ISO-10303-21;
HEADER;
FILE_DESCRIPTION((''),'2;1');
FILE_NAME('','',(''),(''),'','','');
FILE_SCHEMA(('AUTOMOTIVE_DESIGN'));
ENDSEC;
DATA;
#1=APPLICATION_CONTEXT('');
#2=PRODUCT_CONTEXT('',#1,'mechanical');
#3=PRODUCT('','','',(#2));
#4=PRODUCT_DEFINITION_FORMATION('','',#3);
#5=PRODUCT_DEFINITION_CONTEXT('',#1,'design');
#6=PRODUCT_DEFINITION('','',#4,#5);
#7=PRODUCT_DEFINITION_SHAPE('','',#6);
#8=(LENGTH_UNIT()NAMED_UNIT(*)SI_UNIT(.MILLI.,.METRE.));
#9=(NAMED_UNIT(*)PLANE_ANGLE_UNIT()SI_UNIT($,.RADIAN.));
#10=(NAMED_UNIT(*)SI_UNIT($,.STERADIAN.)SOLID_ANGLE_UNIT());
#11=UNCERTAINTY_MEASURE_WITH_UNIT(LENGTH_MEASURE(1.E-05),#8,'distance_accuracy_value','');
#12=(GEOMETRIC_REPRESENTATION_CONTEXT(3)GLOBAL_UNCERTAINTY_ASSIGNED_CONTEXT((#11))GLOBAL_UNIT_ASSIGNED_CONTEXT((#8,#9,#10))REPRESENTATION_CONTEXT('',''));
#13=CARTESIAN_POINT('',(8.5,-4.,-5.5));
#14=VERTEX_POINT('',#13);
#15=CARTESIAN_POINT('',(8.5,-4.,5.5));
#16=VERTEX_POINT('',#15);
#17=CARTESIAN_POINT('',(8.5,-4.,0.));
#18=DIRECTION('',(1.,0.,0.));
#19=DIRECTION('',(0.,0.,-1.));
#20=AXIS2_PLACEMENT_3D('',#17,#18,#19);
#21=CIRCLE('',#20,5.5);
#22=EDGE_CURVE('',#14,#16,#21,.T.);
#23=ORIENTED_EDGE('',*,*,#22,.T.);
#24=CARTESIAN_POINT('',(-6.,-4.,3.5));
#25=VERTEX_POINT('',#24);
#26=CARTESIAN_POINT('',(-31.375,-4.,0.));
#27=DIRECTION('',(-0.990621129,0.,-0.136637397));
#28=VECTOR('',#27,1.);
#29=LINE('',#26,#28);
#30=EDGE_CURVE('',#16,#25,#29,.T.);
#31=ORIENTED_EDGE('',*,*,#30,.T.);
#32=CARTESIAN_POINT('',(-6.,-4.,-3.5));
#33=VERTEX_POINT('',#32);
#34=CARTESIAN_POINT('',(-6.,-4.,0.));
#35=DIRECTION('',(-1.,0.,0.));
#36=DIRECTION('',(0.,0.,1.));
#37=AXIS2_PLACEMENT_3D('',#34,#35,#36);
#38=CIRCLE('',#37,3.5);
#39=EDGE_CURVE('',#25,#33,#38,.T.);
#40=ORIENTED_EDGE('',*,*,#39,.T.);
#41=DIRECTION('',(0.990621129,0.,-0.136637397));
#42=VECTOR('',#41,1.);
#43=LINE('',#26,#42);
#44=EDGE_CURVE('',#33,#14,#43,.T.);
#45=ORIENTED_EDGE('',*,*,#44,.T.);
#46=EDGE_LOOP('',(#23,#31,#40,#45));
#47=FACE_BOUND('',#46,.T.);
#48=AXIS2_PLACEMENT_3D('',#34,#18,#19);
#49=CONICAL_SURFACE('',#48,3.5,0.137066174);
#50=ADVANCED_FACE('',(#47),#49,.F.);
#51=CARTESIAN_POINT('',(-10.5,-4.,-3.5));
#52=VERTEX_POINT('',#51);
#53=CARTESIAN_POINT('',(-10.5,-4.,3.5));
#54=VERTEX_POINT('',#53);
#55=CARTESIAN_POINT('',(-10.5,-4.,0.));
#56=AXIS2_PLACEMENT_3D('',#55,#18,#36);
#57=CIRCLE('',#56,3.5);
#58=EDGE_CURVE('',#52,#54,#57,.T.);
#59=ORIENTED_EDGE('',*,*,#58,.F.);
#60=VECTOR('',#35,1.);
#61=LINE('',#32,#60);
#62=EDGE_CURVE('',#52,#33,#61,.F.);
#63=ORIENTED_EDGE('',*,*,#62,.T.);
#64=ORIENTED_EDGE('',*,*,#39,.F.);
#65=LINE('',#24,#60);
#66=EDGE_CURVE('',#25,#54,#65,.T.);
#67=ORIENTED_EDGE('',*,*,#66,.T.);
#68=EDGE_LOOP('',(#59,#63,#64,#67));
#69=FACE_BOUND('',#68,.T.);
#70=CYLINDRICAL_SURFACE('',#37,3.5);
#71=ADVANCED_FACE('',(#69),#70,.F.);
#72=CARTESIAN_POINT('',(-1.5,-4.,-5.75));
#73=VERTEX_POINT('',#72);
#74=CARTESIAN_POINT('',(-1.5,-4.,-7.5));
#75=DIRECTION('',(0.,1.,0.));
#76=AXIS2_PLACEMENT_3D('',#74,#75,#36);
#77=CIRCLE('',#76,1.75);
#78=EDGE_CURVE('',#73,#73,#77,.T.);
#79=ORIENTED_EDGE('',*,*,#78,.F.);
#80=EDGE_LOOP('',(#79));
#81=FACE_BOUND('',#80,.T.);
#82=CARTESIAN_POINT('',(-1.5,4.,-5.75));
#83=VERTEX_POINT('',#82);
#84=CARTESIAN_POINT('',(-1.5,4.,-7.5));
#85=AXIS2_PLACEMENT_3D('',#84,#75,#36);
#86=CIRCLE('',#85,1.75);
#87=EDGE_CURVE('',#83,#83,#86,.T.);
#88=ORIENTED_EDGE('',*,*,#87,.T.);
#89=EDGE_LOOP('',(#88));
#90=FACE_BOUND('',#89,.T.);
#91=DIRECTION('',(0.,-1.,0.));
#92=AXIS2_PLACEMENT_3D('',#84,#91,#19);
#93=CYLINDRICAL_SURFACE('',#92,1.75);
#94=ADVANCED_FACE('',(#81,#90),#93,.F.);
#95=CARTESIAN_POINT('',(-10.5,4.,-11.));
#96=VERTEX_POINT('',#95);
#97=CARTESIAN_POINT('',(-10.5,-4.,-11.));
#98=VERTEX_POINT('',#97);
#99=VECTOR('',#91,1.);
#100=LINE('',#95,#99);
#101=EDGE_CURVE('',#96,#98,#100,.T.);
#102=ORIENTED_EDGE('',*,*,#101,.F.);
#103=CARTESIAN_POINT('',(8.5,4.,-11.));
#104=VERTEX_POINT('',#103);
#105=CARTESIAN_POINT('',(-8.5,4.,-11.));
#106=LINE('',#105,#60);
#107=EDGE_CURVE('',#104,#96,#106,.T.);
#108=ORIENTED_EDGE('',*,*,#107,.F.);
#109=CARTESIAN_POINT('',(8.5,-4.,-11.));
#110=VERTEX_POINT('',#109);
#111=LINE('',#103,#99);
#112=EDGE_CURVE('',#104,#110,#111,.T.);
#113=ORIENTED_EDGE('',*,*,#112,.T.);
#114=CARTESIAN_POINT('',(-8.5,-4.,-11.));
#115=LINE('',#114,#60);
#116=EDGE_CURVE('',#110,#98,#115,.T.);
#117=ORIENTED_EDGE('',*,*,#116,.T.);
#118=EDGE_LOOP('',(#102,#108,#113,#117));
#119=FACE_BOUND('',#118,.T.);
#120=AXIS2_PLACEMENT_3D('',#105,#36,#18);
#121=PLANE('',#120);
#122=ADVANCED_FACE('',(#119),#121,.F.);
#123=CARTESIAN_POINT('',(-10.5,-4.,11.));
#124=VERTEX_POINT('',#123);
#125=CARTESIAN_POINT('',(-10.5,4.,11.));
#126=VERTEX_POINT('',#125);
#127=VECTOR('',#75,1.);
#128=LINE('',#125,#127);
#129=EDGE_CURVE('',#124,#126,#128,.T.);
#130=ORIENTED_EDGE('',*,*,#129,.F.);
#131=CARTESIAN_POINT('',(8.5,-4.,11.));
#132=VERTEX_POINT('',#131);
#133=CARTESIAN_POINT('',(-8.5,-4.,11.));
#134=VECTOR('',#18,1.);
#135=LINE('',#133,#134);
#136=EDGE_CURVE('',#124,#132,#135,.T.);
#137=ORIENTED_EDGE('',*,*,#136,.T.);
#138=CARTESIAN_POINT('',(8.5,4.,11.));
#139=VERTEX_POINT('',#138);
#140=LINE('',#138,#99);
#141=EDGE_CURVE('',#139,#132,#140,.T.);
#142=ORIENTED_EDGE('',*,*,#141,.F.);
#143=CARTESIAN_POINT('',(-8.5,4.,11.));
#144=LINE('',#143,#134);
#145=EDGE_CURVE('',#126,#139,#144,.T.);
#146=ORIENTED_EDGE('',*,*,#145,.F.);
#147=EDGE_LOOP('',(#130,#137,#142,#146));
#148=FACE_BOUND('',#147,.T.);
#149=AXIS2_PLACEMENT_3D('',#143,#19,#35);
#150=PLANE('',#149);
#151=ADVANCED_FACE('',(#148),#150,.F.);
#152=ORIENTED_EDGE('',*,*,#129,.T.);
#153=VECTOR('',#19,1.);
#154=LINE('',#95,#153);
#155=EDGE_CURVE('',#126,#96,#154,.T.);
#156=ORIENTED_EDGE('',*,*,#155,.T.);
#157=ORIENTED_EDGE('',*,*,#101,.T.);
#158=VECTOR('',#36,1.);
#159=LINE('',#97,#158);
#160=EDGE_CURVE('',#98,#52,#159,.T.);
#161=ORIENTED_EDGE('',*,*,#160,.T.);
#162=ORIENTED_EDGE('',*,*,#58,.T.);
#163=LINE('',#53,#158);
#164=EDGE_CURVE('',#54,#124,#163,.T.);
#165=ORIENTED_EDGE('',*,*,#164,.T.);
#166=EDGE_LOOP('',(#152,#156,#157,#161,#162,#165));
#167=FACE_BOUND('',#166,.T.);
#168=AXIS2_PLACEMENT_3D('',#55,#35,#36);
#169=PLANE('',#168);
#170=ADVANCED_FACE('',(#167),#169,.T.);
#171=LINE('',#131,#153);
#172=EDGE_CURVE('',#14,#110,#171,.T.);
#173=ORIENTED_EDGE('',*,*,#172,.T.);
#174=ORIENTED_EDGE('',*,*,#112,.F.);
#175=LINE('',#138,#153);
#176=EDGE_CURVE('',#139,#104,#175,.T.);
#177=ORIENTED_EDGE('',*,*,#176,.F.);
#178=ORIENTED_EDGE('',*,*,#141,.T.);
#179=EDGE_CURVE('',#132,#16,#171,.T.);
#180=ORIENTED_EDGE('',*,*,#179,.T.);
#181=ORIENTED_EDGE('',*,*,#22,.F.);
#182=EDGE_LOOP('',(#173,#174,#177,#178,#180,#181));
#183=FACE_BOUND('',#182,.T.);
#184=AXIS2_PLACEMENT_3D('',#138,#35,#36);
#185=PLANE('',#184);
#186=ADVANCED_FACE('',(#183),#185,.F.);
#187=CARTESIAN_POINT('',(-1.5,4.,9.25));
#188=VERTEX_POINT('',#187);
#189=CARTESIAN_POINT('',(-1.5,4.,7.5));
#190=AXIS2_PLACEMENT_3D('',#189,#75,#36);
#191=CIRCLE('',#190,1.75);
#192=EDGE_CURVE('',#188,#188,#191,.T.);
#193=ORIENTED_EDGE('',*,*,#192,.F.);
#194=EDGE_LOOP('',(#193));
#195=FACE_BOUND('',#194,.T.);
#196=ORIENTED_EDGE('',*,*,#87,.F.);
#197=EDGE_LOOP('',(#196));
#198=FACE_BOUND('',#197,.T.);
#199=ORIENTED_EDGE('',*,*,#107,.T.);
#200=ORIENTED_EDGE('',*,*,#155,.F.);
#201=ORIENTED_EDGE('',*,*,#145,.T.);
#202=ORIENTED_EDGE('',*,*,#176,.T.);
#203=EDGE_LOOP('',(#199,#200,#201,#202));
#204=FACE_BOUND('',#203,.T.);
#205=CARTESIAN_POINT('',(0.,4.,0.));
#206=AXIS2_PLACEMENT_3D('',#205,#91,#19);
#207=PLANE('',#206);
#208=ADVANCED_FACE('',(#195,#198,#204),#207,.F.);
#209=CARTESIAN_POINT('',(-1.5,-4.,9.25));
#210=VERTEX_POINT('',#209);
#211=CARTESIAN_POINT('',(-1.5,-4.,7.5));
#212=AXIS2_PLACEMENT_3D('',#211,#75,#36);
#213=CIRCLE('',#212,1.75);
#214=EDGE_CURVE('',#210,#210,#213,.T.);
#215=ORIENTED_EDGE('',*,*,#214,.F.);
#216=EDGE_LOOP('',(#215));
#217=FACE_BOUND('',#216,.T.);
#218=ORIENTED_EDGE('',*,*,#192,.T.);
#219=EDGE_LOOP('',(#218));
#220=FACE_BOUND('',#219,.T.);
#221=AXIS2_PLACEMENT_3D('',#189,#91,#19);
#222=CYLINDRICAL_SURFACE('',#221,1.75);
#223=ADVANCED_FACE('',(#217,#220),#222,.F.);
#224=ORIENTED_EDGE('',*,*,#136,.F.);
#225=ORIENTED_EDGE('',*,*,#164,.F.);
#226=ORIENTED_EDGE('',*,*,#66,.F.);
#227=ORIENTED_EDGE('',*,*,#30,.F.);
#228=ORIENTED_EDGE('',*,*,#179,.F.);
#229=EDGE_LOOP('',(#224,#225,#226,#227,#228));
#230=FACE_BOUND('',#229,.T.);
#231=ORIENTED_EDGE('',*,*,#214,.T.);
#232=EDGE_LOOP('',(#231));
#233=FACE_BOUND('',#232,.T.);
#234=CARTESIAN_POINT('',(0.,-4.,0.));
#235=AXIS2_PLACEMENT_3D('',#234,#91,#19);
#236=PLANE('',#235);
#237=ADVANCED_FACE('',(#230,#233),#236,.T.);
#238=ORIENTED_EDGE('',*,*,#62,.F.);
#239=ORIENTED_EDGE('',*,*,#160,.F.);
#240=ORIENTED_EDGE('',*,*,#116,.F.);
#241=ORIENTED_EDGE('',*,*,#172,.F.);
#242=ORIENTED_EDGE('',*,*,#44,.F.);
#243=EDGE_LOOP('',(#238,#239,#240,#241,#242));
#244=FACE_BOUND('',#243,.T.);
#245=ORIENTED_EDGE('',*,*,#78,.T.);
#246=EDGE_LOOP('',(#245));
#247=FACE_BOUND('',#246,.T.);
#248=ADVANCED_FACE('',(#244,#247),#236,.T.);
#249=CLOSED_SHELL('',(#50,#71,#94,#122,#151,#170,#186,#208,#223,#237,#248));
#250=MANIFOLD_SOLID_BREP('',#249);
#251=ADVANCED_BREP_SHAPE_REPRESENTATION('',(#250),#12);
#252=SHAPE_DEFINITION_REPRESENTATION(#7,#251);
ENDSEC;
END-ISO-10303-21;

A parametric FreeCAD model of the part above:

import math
import FreeCAD as App
import Part
import Sketcher
from FreeCAD import Vector
Q = App.Units.Quantity

doc = App.newDocument("Part")
body = doc.addObject("PartDesign::Body", "Body")

# Sketch on XZ plane
sketch1 = body.newObject("Sketcher::SketchObject", "Sketch")
sketch1.AttachmentSupport = (doc.getObject("XZ_Plane"), [""])
sketch1.MapMode = "FlatFace"
sketch1.addGeometry([
    Part.LineSegment(Vector(-8.5, -11, 0), Vector(-8.5, 11, 0)),  # 0
    Part.LineSegment(Vector(-8.5, 11, 0), Vector(8.5, 11, 0)),  # 1
    Part.LineSegment(Vector(8.5, 11, 0), Vector(8.5, -11, 0)),  # 2
    Part.LineSegment(Vector(8.5, -11, 0), Vector(-8.5, -11, 0)),  # 3
    Part.Circle(Vector(-1.5, 7.5, 0), Vector(0, 0, 1), 1.8),  # 4
    Part.Circle(Vector(-1.5, -7.5, 0), Vector(0, 0, 1), 1.8),  # 5
], False)
sketch1.addConstraint([
    Sketcher.Constraint("Coincident", 0, 2, 1, 1),
    Sketcher.Constraint("Coincident", 1, 2, 2, 1),
    Sketcher.Constraint("Coincident", 2, 2, 3, 1),
    Sketcher.Constraint("Coincident", 3, 2, 0, 1),
    Sketcher.Constraint("Vertical", 0),
    Sketcher.Constraint("Horizontal", 1),
    Sketcher.Constraint("Vertical", 2),
    Sketcher.Constraint("Horizontal", 3),
    Sketcher.Constraint("Equal", 4, 5),
    Sketcher.Constraint("Symmetric", 0, 2, 2, 2, -1, 1),
    Sketcher.Constraint("Symmetric", 4, 3, 5, 3, -1),
    Sketcher.Constraint("Diameter", 4, Q("3.5 mm")),
    Sketcher.Constraint("DistanceX", 1, 1, 1, 2, Q("17 mm")),
    Sketcher.Constraint("DistanceY", 0, 1, 0, 2, Q("22 mm")),
    Sketcher.Constraint("DistanceY", 5, 3, 4, 3, Q("15 mm")),
    Sketcher.Constraint("DistanceX", 0, 2, 4, 3, Q("7 mm")),
])
pad1 = body.newObject("PartDesign::Pad", "Pad")
pad1.Profile = sketch1
pad1.Length = 8
pad1.Midplane = True

# Sketch on YZ plane
sketch2 = body.newObject("Sketcher::SketchObject", "Sketch001")
sketch2.AttachmentSupport = (doc.getObject("YZ_Plane"), [""])
sketch2.MapMode = "FlatFace"
sketch2.AttachmentOffset = App.Placement(Vector(0, 0, -8.5), App.Rotation())
sketch2.addGeometry(Part.Circle(Vector(-4, 0, 0), Vector(0, 0, 1), 3.5), False)
sketch2.addConstraint([
    Sketcher.Constraint("PointOnObject", 0, 3, -1),
    Sketcher.Constraint("Diameter", 0, Q("7 mm")),
    Sketcher.Constraint("DistanceX", 0, 3, -1, 1, Q("4 mm")),
])
pocket1 = body.newObject("PartDesign::Pocket", "Pocket")
pocket1.Profile = sketch2
pocket1.Length = 2.5
pocket1.Reversed = True

# Sketch on YZ plane
sketch3 = body.newObject("Sketcher::SketchObject", "Sketch002")
sketch3.AttachmentSupport = (doc.getObject("YZ_Plane"), [""])
sketch3.MapMode = "FlatFace"
sketch3.AttachmentOffset = App.Placement(Vector(0, 0, 8.5), App.Rotation())
sketch3.addGeometry(Part.Circle(Vector(-4, 0, 0), Vector(0, 0, 1), 6), False)
sketch3.addConstraint([
    Sketcher.Constraint("PointOnObject", 0, 3, -1),
    Sketcher.Constraint("Diameter", 0, Q("11 mm")),
    Sketcher.Constraint("DistanceX", 0, 3, -1, 1, Q("4 mm")),
])

# Sketch on YZ plane
sketch4 = body.newObject("Sketcher::SketchObject", "Sketch003")
sketch4.AttachmentSupport = (doc.getObject("YZ_Plane"), [""])
sketch4.MapMode = "FlatFace"
sketch4.AttachmentOffset = App.Placement(Vector(0, 0, -6), App.Rotation())
sketch4.addGeometry(Part.Circle(Vector(-4, 0, 0), Vector(0, 0, 1), 3.5), False)
sketch4.addConstraint([
    Sketcher.Constraint("PointOnObject", 0, 3, -1),
    Sketcher.Constraint("Diameter", 0, Q("7 mm")),
    Sketcher.Constraint("DistanceX", 0, 3, -1, 1, Q("4 mm")),
])

subtractiveloft = body.newObject("PartDesign::SubtractiveLoft", "SubtractiveLoft")
subtractiveloft.Profile = sketch3
subtractiveloft.Sections = [sketch4]

# Sketch on YZ plane
sketch5 = body.newObject("Sketcher::SketchObject", "Sketch004")
sketch5.AttachmentSupport = (doc.getObject("YZ_Plane"), [""])
sketch5.MapMode = "FlatFace"
sketch5.AttachmentOffset = App.Placement(Vector(0, 0, -8.5), App.Rotation())
sketch5.addGeometry([
    Part.LineSegment(Vector(-4, 3.5, 0), Vector(-4, 11, 0)),  # 0
    Part.LineSegment(Vector(-4, 11, 0), Vector(4, 11, 0)),  # 1
    Part.LineSegment(Vector(4, 11, 0), Vector(4, -11, 0)),  # 2
    Part.LineSegment(Vector(4, -11, 0), Vector(-4, -11, 0)),  # 3
    Part.LineSegment(Vector(-4, -11, 0), Vector(-4, -3.5, 0)),  # 4
    Part.ArcOfCircle(Part.Circle(Vector(-4, 0, 0), Vector(0, 0, 1), 3.5), math.radians(-90), math.radians(90)),  # 5
], False)
sketch5.addConstraint([
    Sketcher.Constraint("Coincident", 0, 2, 1, 1),
    Sketcher.Constraint("Coincident", 1, 2, 2, 1),
    Sketcher.Constraint("Coincident", 2, 2, 3, 1),
    Sketcher.Constraint("Coincident", 3, 2, 4, 1),
    Sketcher.Constraint("Coincident", 4, 2, 5, 1),
    Sketcher.Constraint("Coincident", 5, 2, 0, 1),
    Sketcher.Constraint("Vertical", 0),
    Sketcher.Constraint("Horizontal", 1),
    Sketcher.Constraint("Vertical", 2),
    Sketcher.Constraint("Horizontal", 3),
    Sketcher.Constraint("Vertical", 4),
    Sketcher.Constraint("Symmetric", 0, 2, 2, 2, -1, 1),
    Sketcher.Constraint("Symmetric", 4, 2, 5, 2, -1),
    Sketcher.Constraint("Vertical", 5, 3, 0, 2),
    Sketcher.Constraint("Radius", 5, Q("3.5 mm")),
    Sketcher.Constraint("DistanceX", 1, 1, 1, 2, Q("8 mm")),
    Sketcher.Constraint("DistanceY", 2, 2, 2, 1, Q("22 mm")),
])
pad2 = body.newObject("PartDesign::Pad", "Pad001")
pad2.Profile = sketch5
pad2.Length = 2
pad2.Reversed = True

doc.recompute()
